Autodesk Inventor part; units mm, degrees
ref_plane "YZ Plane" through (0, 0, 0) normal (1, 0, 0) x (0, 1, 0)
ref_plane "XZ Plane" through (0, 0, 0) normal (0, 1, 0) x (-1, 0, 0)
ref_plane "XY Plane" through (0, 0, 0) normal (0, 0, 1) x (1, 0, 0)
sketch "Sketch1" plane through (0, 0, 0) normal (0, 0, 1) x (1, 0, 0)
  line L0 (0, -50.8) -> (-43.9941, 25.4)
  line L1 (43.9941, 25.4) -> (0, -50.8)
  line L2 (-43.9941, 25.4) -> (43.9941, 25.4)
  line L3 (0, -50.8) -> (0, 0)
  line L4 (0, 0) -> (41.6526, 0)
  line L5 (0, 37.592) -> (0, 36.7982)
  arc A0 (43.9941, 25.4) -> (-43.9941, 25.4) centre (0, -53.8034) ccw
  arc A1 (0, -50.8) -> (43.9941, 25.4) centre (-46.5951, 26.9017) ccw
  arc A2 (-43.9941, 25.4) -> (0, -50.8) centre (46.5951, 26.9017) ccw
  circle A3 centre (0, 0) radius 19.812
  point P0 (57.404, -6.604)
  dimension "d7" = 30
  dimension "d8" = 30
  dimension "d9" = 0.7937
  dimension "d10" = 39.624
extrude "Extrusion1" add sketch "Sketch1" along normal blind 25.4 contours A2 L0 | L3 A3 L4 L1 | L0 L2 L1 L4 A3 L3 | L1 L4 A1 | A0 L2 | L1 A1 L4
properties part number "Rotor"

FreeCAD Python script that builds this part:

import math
import FreeCAD as App
import Part
import Sketcher
from FreeCAD import Vector
Q = App.Units.Quantity

doc = App.newDocument("Part")
body = doc.addObject("PartDesign::Body", "Body")

sketch1 = body.newObject("Sketcher::SketchObject", "Sketch")
sketch1.AttachmentSupport = (doc.getObject("XY_Plane"), [""])
sketch1.MapMode = "FlatFace"
sketch1.addGeometry([
    Part.ArcOfCircle(Part.Circle(Vector(47, 27, 0), Vector(0, 0, 1), 91), math.radians(-179), math.radians(-121)),
    Part.ArcOfCircle(Part.Circle(Vector(-47, 27, 0), Vector(0, 0, 1), 91), math.radians(-59), math.radians(-1)),
    Part.ArcOfCircle(Part.Circle(Vector(0, -54, 0), Vector(0, 0, 1), 91), math.radians(61), math.radians(119)),
    Part.Circle(Vector(0, 0, 0), Vector(0, 0, 1), 20),
], False)
sketch1.addConstraint([
    Sketcher.Constraint("Coincident", 0, 2, 1, 1),
    Sketcher.Constraint("Coincident", 1, 2, 2, 1),
    Sketcher.Constraint("Coincident", 2, 2, 0, 1),
    Sketcher.Constraint("Coincident", 3, 3, -1, 1),
    Sketcher.Constraint("Equal", 0, 1),
    Sketcher.Constraint("Equal", 1, 2),
    Sketcher.Constraint("Symmetric", 0, 3, 1, 3, -2),
    Sketcher.Constraint("PointOnObject", 2, 3, -2),
    Sketcher.Constraint("Diameter", 3, Q("1.56 in")),
    Sketcher.Constraint("DistanceY", 0, 2, -1, 1, Q("2 in")),
    Sketcher.Constraint("DistanceY", -1, 1, 1, 2, Q("1 in")),
    Sketcher.Constraint("Radius", 0, Q("3.567 in")),
    Sketcher.Constraint("DistanceX", 1, 3, 0, 3, Q("3.6689 in")),
])
pad1 = body.newObject("PartDesign::Pad", "Pad")
pad1.Profile = sketch1
pad1.Length = Q("1 in")

doc.recompute()
